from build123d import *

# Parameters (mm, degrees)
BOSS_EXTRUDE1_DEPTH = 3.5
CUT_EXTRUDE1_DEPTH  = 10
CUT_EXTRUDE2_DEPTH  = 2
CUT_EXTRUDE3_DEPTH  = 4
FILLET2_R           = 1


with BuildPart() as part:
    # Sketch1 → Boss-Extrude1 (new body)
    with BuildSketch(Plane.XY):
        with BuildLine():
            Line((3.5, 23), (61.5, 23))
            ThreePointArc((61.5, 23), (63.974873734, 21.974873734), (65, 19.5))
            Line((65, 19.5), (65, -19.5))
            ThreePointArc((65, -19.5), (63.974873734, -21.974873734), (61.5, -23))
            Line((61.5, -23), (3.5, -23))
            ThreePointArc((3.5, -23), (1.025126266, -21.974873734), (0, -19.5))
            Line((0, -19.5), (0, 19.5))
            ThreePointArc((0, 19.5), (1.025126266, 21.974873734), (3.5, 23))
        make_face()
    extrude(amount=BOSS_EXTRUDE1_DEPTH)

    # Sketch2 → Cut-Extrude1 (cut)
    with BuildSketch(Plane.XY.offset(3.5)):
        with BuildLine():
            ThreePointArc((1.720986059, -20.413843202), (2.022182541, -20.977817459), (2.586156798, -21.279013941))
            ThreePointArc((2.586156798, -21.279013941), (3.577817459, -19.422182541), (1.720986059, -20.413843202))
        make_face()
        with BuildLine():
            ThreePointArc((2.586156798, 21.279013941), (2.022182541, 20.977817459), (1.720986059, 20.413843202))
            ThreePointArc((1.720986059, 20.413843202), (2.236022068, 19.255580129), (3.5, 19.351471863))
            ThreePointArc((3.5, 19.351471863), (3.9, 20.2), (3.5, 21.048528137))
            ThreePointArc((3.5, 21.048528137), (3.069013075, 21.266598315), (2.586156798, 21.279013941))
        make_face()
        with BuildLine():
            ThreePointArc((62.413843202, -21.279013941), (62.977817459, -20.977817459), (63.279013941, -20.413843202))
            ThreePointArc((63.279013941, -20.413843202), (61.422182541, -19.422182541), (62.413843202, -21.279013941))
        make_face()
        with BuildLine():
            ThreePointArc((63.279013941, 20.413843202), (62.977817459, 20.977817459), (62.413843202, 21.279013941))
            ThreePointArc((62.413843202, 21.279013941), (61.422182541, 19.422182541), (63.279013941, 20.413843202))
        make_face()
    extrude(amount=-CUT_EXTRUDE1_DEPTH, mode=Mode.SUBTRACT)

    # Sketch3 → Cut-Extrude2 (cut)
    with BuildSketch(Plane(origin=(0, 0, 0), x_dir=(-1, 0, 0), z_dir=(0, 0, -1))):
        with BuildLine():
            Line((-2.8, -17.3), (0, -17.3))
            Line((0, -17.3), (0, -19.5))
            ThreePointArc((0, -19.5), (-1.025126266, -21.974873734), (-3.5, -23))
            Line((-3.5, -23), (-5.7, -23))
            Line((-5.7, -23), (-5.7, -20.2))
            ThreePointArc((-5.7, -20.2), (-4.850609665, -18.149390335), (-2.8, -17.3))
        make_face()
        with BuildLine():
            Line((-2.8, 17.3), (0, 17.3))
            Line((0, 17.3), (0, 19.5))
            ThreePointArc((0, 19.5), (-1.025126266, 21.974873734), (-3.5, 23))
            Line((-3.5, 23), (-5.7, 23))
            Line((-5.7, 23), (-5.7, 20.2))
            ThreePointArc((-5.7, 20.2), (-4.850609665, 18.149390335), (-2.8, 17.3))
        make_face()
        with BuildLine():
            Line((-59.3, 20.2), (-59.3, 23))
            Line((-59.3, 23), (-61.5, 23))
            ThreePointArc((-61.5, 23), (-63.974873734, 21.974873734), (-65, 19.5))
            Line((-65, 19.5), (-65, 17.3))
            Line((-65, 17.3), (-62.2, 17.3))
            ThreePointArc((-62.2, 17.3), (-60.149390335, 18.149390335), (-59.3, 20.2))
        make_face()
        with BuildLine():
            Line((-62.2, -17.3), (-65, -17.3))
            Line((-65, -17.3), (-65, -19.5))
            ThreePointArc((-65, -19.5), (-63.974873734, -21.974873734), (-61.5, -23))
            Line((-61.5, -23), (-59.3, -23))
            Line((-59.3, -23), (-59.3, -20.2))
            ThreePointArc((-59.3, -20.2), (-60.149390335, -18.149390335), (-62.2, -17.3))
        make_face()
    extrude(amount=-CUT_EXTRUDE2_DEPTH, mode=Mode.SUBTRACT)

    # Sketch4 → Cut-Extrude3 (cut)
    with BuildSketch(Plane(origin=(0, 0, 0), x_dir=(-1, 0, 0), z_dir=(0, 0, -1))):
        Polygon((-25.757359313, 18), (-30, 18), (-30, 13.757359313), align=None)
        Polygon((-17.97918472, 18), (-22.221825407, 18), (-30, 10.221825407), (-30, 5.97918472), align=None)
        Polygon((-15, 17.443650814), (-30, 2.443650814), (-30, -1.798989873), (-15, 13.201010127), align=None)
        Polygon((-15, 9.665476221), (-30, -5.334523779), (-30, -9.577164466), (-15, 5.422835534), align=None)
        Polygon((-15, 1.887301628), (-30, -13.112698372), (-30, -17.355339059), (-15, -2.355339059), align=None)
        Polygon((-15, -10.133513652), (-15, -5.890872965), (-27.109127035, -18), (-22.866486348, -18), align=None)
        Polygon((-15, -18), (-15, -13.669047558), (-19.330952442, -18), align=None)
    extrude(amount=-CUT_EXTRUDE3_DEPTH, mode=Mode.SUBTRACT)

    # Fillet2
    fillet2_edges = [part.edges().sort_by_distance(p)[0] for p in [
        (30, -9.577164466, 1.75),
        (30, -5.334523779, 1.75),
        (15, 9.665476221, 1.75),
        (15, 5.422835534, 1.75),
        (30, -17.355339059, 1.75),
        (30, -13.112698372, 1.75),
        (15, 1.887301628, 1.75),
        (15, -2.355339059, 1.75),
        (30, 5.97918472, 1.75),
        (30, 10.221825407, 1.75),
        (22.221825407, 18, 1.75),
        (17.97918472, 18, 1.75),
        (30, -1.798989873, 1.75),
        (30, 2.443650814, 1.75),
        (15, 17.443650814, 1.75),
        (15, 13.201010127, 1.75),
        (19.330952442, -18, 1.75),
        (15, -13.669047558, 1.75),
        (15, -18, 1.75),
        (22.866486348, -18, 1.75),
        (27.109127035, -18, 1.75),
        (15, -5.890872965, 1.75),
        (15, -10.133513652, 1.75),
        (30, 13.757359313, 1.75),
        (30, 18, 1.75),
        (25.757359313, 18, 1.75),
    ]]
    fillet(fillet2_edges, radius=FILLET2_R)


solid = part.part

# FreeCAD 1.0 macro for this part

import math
import FreeCAD as App
import Part
import Sketcher


def edges_at(feature, points):
    """Names of the edges that pass closest to the given points."""
    edges = feature.Shape.Edges
    near = lambda p: min(range(len(edges)), key=lambda i: edges[i].distToShape(Part.Vertex(*p))[0])
    return sorted({f"Edge{near(p) + 1}" for p in points})

doc = App.newDocument("Part")
body = doc.addObject("PartDesign::Body", "Body")

# Sketch on XY plane
sketch1 = body.newObject("Sketcher::SketchObject", "Sketch")
sketch1.AttachmentSupport = (doc.getObject("XY_Plane"), [""])
sketch1.MapMode = "FlatFace"
sketch1.addGeometry(Part.LineSegment(App.Vector(61.5, 23, 0), App.Vector(3.5, 23, 0)), False)
sketch1.addGeometry(Part.ArcOfCircle(Part.Circle(App.Vector(3.5, 19.5, 0), App.Vector(0, 0, 1), 3.5), math.radians(90), math.radians(180)), False)
sketch1.addGeometry(Part.LineSegment(App.Vector(0, 19.5, 0), App.Vector(0, -19.5, 0)), False)
sketch1.addGeometry(Part.ArcOfCircle(Part.Circle(App.Vector(3.5, -19.5, 0), App.Vector(0, 0, 1), 3.5), math.radians(-180), math.radians(-90)), False)
sketch1.addGeometry(Part.LineSegment(App.Vector(3.5, -23, 0), App.Vector(61.5, -23, 0)), False)
sketch1.addGeometry(Part.ArcOfCircle(Part.Circle(App.Vector(61.5, -19.5, 0), App.Vector(0, 0, 1), 3.5), math.radians(-90), math.radians(0)), False)
sketch1.addGeometry(Part.LineSegment(App.Vector(65, -19.5, 0), App.Vector(65, 19.5, 0)), False)
sketch1.addGeometry(Part.ArcOfCircle(Part.Circle(App.Vector(61.5, 19.5, 0), App.Vector(0, 0, 1), 3.5), math.radians(0), math.radians(90)), False)
sketch1.addConstraint(Sketcher.Constraint("Tangent", 0, 2, 1, 1))
sketch1.addConstraint(Sketcher.Constraint("Tangent", 1, 2, 2, 1))
sketch1.addConstraint(Sketcher.Constraint("Tangent", 2, 2, 3, 1))
sketch1.addConstraint(Sketcher.Constraint("Tangent", 3, 2, 4, 1))
sketch1.addConstraint(Sketcher.Constraint("Tangent", 4, 2, 5, 1))
sketch1.addConstraint(Sketcher.Constraint("Tangent", 5, 2, 6, 1))
sketch1.addConstraint(Sketcher.Constraint("Tangent", 6, 2, 7, 1))
sketch1.addConstraint(Sketcher.Constraint("Tangent", 7, 2, 0, 1))
sketch1.addConstraint(Sketcher.Constraint("Horizontal", 0))
sketch1.addConstraint(Sketcher.Constraint("Vertical", 2))
sketch1.addConstraint(Sketcher.Constraint("Horizontal", 4))
sketch1.addConstraint(Sketcher.Constraint("Vertical", 6))
sketch1.addConstraint(Sketcher.Constraint("Equal", 1, 3))
sketch1.addConstraint(Sketcher.Constraint("Equal", 3, 5))
sketch1.addConstraint(Sketcher.Constraint("Equal", 5, 7))
sketch1.addConstraint(Sketcher.Constraint("Symmetric", 1, 2, 2, 2, -1, 1))
sketch1.addConstraint(Sketcher.Constraint("Radius", 1, 3.5))
sketch1.addConstraint(Sketcher.Constraint("DistanceX", 0, 2, 0, 1, 58.0))
sketch1.addConstraint(Sketcher.Constraint("DistanceY", 2, 2, 2, 1, 39.0))
pad1 = body.newObject("PartDesign::Pad", "Pad")
pad1.Profile = sketch1
pad1.Length = 3.5

# Sketch on XY plane
sketch2 = body.newObject("Sketcher::SketchObject", "Sketch001")
sketch2.AttachmentSupport = (doc.getObject("XY_Plane"), [""])
sketch2.MapMode = "FlatFace"
sketch2.AttachmentOffset = App.Placement(App.Vector(0, 0, 3.5), App.Rotation())
sketch2.addGeometry(Part.ArcOfCircle(Part.Circle(App.Vector(2.8, -20.2, 0), App.Vector(0, 0, 1), 1.1), math.radians(-169), math.radians(-101)), False)
sketch2.addGeometry(Part.ArcOfCircle(Part.Circle(App.Vector(2.8, -20.2, 0), App.Vector(0, 0, 1), 1.1), math.radians(-101), math.radians(191)), False)
sketch2.addGeometry(Part.ArcOfCircle(Part.Circle(App.Vector(2.8, 20.2, 0), App.Vector(0, 0, 1), 1.1), math.radians(101), math.radians(169)), False)
sketch2.addGeometry(Part.ArcOfCircle(Part.Circle(App.Vector(2.8, 20.2, 0), App.Vector(0, 0, 1), 1.1), math.radians(169), math.radians(310)), False)
sketch2.addGeometry(Part.ArcOfCircle(Part.Circle(App.Vector(2.8, 20.2, 0), App.Vector(0, 0, 1), 1.1), math.radians(-50), math.radians(50)), False)
sketch2.addGeometry(Part.ArcOfCircle(Part.Circle(App.Vector(2.8, 20.2, 0), App.Vector(0, 0, 1), 1.1), math.radians(50), math.radians(101)), False)
sketch2.addGeometry(Part.ArcOfCircle(Part.Circle(App.Vector(62.2, -20.2, 0), App.Vector(0, 0, 1), 1.1), math.radians(-79), math.radians(-11)), False)
sketch2.addGeometry(Part.ArcOfCircle(Part.Circle(App.Vector(62.2, -20.2, 0), App.Vector(0, 0, 1), 1.1), math.radians(-11), math.radians(281)), False)
sketch2.addGeometry(Part.ArcOfCircle(Part.Circle(App.Vector(62.2, 20.2, 0), App.Vector(0, 0, 1), 1.1), math.radians(11), math.radians(79)), False)
sketch2.addGeometry(Part.ArcOfCircle(Part.Circle(App.Vector(62.2, 20.2, 0), App.Vector(0, 0, 1), 1.1), math.radians(79), math.radians(371)), False)
sketch2.addConstraint(Sketcher.Constraint("Tangent", 0, 1, 1, 2))
sketch2.addConstraint(Sketcher.Constraint("Coincident", 1, 1, 0, 2))
sketch2.addConstraint(Sketcher.Constraint("Tangent", 2, 2, 3, 1))
sketch2.addConstraint(Sketcher.Constraint("Tangent", 3, 2, 4, 1))
sketch2.addConstraint(Sketcher.Constraint("Tangent", 4, 2, 5, 1))
sketch2.addConstraint(Sketcher.Constraint("Tangent", 5, 2, 2, 1))
sketch2.addConstraint(Sketcher.Constraint("Tangent", 6, 1, 7, 2))
sketch2.addConstraint(Sketcher.Constraint("Coincident", 7, 1, 6, 2))
sketch2.addConstraint(Sketcher.Constraint("Tangent", 8, 1, 9, 2))
sketch2.addConstraint(Sketcher.Constraint("Coincident", 9, 1, 8, 2))
sketch2.addConstraint(Sketcher.Constraint("Equal", 1, 2))
sketch2.addConstraint(Sketcher.Constraint("Equal", 2, 3))
sketch2.addConstraint(Sketcher.Constraint("Equal", 5, 6))
sketch2.addConstraint(Sketcher.Constraint("Equal", 7, 8))
sketch2.addConstraint(Sketcher.Constraint("Symmetric", 0, 3, 2, 3, -1))
sketch2.addConstraint(Sketcher.Constraint("Symmetric", 6, 3, 8, 3, -1))
sketch2.addConstraint(Sketcher.Constraint("Horizontal", 1, 3, 6, 3))
sketch2.addConstraint(Sketcher.Constraint("Horizontal", 1, 1, 6, 1))
sketch2.addConstraint(Sketcher.Constraint("Horizontal", 0, 1, 7, 1))
sketch2.addConstraint(Sketcher.Constraint("Horizontal", 2, 2, 8, 1))
sketch2.addConstraint(Sketcher.Constraint("Horizontal", 5, 2, 9, 1))
sketch2.addConstraint(Sketcher.Constraint("Vertical", 0, 1, 2, 2))
sketch2.addConstraint(Sketcher.Constraint("Vertical", 3, 2, 4, 2))
sketch2.addConstraint(Sketcher.Constraint("Vertical", 1, 1, 5, 2))
sketch2.addConstraint(Sketcher.Constraint("Radius", 0, 1.1))
sketch2.addConstraint(Sketcher.Constraint("DistanceX", -1, 1, 0, 3, 2.8))
sketch2.addConstraint(Sketcher.Constraint("DistanceY", 0, 3, -1, 1, 20.2))
sketch2.addConstraint(Sketcher.Constraint("DistanceX", -1, 1, 6, 3, 62.2))
sketch2.addConstraint(Sketcher.Constraint("DistanceX", -1, 1, 3, 2, 3.5))
sketch2.addConstraint(Sketcher.Constraint("DistanceX", 0, 1, 1, 1, 0.865171))
sketch2.addConstraint(Sketcher.Constraint("DistanceY", 1, 1, 0, 1, 0.865171))
pocket1 = body.newObject("PartDesign::Pocket", "Pocket")
pocket1.Profile = sketch2
pocket1.Length = 10

# Sketch on XY plane
sketch3 = body.newObject("Sketcher::SketchObject", "Sketch002")
sketch3.AttachmentSupport = (doc.getObject("XY_Plane"), [""])
sketch3.MapMode = "FlatFace"
sketch3.addGeometry(Part.LineSegment(App.Vector(0, -17.3, 0), App.Vector(2.8, -17.3, 0)), False)
sketch3.addGeometry(Part.ArcOfCircle(Part.Circle(App.Vector(2.8, -20.2, 0), App.Vector(0, 0, 1), 2.9), math.radians(0), math.radians(90)), False)
sketch3.addGeometry(Part.LineSegment(App.Vector(5.7, -20.2, 0), App.Vector(5.7, -23, 0)), False)
sketch3.addGeometry(Part.LineSegment(App.Vector(5.7, -23, 0), App.Vector(3.5, -23, 0)), False)
sketch3.addGeometry(Part.ArcOfCircle(Part.Circle(App.Vector(3.5, -19.5, 0), App.Vector(0, 0, 1), 3.5), math.radians(-180), math.radians(-90)), False)
sketch3.addGeometry(Part.LineSegment(App.Vector(0, -19.5, 0), App.Vector(0, -17.3, 0)), False)
sketch3.addGeometry(Part.LineSegment(App.Vector(2.8, 17.3, 0), App.Vector(0, 17.3, 0)), False)
sketch3.addGeometry(Part.LineSegment(App.Vector(0, 17.3, 0), App.Vector(0, 19.5, 0)), False)
sketch3.addGeometry(Part.ArcOfCircle(Part.Circle(App.Vector(3.5, 19.5, 0), App.Vector(0, 0, 1), 3.5), math.radians(90), math.radians(180)), False)
sketch3.addGeometry(Part.LineSegment(App.Vector(3.5, 23, 0), App.Vector(5.7, 23, 0)), False)
sketch3.addGeometry(Part.LineSegment(App.Vector(5.7, 23, 0), App.Vector(5.7, 20.2, 0)), False)
sketch3.addGeometry(Part.ArcOfCircle(Part.Circle(App.Vector(2.8, 20.2, 0), App.Vector(0, 0, 1), 2.9), math.radians(-90), math.radians(0)), False)
sketch3.addGeometry(Part.LineSegment(App.Vector(59.3, 20.2, 0), App.Vector(59.3, 23, 0)), False)
sketch3.addGeometry(Part.LineSegment(App.Vector(59.3, 23, 0), App.Vector(61.5, 23, 0)), False)
sketch3.addGeometry(Part.ArcOfCircle(Part.Circle(App.Vector(61.5, 19.5, 0), App.Vector(0, 0, 1), 3.5), math.radians(0), math.radians(90)), False)
sketch3.addGeometry(Part.LineSegment(App.Vector(65, 19.5, 0), App.Vector(65, 17.3, 0)), False)
sketch3.addGeometry(Part.LineSegment(App.Vector(65, 17.3, 0), App.Vector(62.2, 17.3, 0)), False)
sketch3.addGeometry(Part.ArcOfCircle(Part.Circle(App.Vector(62.2, 20.2, 0), App.Vector(0, 0, 1), 2.9), math.radians(-180), math.radians(-90)), False)
sketch3.addGeometry(Part.LineSegment(App.Vector(62.2, -17.3, 0), App.Vector(65, -17.3, 0)), False)
sketch3.addGeometry(Part.LineSegment(App.Vector(65, -17.3, 0), App.Vector(65, -19.5, 0)), False)
sketch3.addGeometry(Part.ArcOfCircle(Part.Circle(App.Vector(61.5, -19.5, 0), App.Vector(0, 0, 1), 3.5), math.radians(-90), math.radians(0)), False)
sketch3.addGeometry(Part.LineSegment(App.Vector(61.5, -23, 0), App.Vector(59.3, -23, 0)), False)
sketch3.addGeometry(Part.LineSegment(App.Vector(59.3, -23, 0), App.Vector(59.3, -20.2, 0)), False)
sketch3.addGeometry(Part.ArcOfCircle(Part.Circle(App.Vector(62.2, -20.2, 0), App.Vector(0, 0, 1), 2.9), math.radians(90), math.radians(180)), False)
sketch3.addConstraint(Sketcher.Constraint("Tangent", 0, 2, 1, 2))
sketch3.addConstraint(Sketcher.Constraint("Tangent", 1, 1, 2, 1))
sketch3.addConstraint(Sketcher.Constraint("Coincident", 2, 2, 3, 1))
sketch3.addConstraint(Sketcher.Constraint("Tangent", 3, 2, 4, 2))
sketch3.addConstraint(Sketcher.Constraint("Tangent", 4, 1, 5, 1))
sketch3.addConstraint(Sketcher.Constraint("Coincident", 5, 2, 0, 1))
sketch3.addConstraint(Sketcher.Constraint("Coincident", 6, 2, 7, 1))
sketch3.addConstraint(Sketcher.Constraint("Tangent", 7, 2, 8, 2))
sketch3.addConstraint(Sketcher.Constraint("Tangent", 8, 1, 9, 1))
sketch3.addConstraint(Sketcher.Constraint("Coincident", 9, 2, 10, 1))
sketch3.addConstraint(Sketcher.Constraint("Tangent", 10, 2, 11, 2))
sketch3.addConstraint(Sketcher.Constraint("Tangent", 11, 1, 6, 1))
sketch3.addConstraint(Sketcher.Constraint("Coincident", 12, 2, 13, 1))
sketch3.addConstraint(Sketcher.Constraint("Tangent", 13, 2, 14, 2))
sketch3.addConstraint(Sketcher.Constraint("Tangent", 14, 1, 15, 1))
sketch3.addConstraint(Sketcher.Constraint("Coincident", 15, 2, 16, 1))
sketch3.addConstraint(Sketcher.Constraint("Tangent", 16, 2, 17, 2))
sketch3.addConstraint(Sketcher.Constraint("Tangent", 17, 1, 12, 1))
sketch3.addConstraint(Sketcher.Constraint("Coincident", 18, 2, 19, 1))
sketch3.addConstraint(Sketcher.Constraint("Tangent", 19, 2, 20, 2))
sketch3.addConstraint(Sketcher.Constraint("Tangent", 20, 1, 21, 1))
sketch3.addConstraint(Sketcher.Constraint("Coincident", 21, 2, 22, 1))
sketch3.addConstraint(Sketcher.Constraint("Tangent", 22, 2, 23, 2))
sketch3.addConstraint(Sketcher.Constraint("Tangent", 23, 1, 18, 1))
sketch3.addConstraint(Sketcher.Constraint("Horizontal", 0))
sketch3.addConstraint(Sketcher.Constraint("Vertical", 2))
sketch3.addConstraint(Sketcher.Constraint("Horizontal", 3))
sketch3.addConstraint(Sketcher.Constraint("Vertical", 5))
sketch3.addConstraint(Sketcher.Constraint("Horizontal", 6))
sketch3.addConstraint(Sketcher.Constraint("Vertical", 7))
sketch3.addConstraint(Sketcher.Constraint("Horizontal", 9))
sketch3.addConstraint(Sketcher.Constraint("Vertical", 10))
sketch3.addConstraint(Sketcher.Constraint("Vertical", 12))
sketch3.addConstraint(Sketcher.Constraint("Horizontal", 13))
sketch3.addConstraint(Sketcher.Constraint("Vertical", 15))
sketch3.addConstraint(Sketcher.Constraint("Horizontal", 16))
sketch3.addConstraint(Sketcher.Constraint("Horizontal", 18))
sketch3.addConstraint(Sketcher.Constraint("Vertical", 19))
sketch3.addConstraint(Sketcher.Constraint("Horizontal", 21))
sketch3.addConstraint(Sketcher.Constraint("Vertical", 22))
sketch3.addConstraint(Sketcher.Constraint("Equal", 4, 8))
sketch3.addConstraint(Sketcher.Constraint("Equal", 1, 11))
sketch3.addConstraint(Sketcher.Constraint("Equal", 8, 14))
sketch3.addConstraint(Sketcher.Constraint("Equal", 11, 17))
sketch3.addConstraint(Sketcher.Constraint("Equal", 14, 20))
sketch3.addConstraint(Sketcher.Constraint("Equal", 17, 23))
sketch3.addConstraint(Sketcher.Constraint("Symmetric", 5, 2, 6, 2, -1, 1))
sketch3.addConstraint(Sketcher.Constraint("Symmetric", 4, 3, 8, 3, -1))
sketch3.addConstraint(Sketcher.Constraint("Symmetric", 14, 3, 20, 3, -1))
sketch3.addConstraint(Sketcher.Constraint("Symmetric", 17, 3, 23, 3, -1))
sketch3.addConstraint(Sketcher.Constraint("Horizontal", 8, 3, 14, 3))
sketch3.addConstraint(Sketcher.Constraint("Horizontal", 11, 3, 17, 3))
sketch3.addConstraint(Sketcher.Constraint("Vertical", 1, 3, 11, 3))
sketch3.addConstraint(Sketcher.Constraint("Equal", 9, 13))
sketch3.addConstraint(Sketcher.Constraint("Equal", 18, 2))
sketch3.addConstraint(Sketcher.Constraint("Radius", 1, 2.9))
sketch3.addConstraint(Sketcher.Constraint("Radius", 4, 3.5))
sketch3.addConstraint(Sketcher.Constraint("DistanceX", 0, 1, 0, 2, 2.8))
sketch3.addConstraint(Sketcher.Constraint("DistanceY", 2, 2, -1, 1, 23.0))
sketch3.addConstraint(Sketcher.Constraint("DistanceX", -1, 1, 14, 1, 65.0))
pocket2 = body.newObject("PartDesign::Pocket", "Pocket001")
pocket2.Profile = sketch3
pocket2.Length = 2
pocket2.Reversed = True

# Sketch on XY plane
sketch4 = body.newObject("Sketcher::SketchObject", "Sketch003")
sketch4.AttachmentSupport = (doc.getObject("XY_Plane"), [""])
sketch4.MapMode = "FlatFace"
sketch4.addGeometry(Part.LineSegment(App.Vector(25.8, 18, 0), App.Vector(30, 18, 0)), False)
sketch4.addGeometry(Part.LineSegment(App.Vector(30, 18, 0), App.Vector(30, 13.8, 0)), False)
sketch4.addGeometry(Part.LineSegment(App.Vector(30, 13.8, 0), App.Vector(25.8, 18, 0)), False)
sketch4.addGeometry(Part.LineSegment(App.Vector(18, 18, 0), App.Vector(22.2, 18, 0)), False)
sketch4.addGeometry(Part.LineSegment(App.Vector(22.2, 18, 0), App.Vector(30, 10.2, 0)), False)
sketch4.addGeometry(Part.LineSegment(App.Vector(30, 10.2, 0), App.Vector(30, 6, 0)), False)
sketch4.addGeometry(Part.LineSegment(App.Vector(30, 6, 0), App.Vector(18, 18, 0)), False)
sketch4.addGeometry(Part.LineSegment(App.Vector(15, 17.4, 0), App.Vector(30, 2.4, 0)), False)
sketch4.addGeometry(Part.LineSegment(App.Vector(30, 2.4, 0), App.Vector(30, -1.8, 0)), False)
sketch4.addGeometry(Part.LineSegment(App.Vector(30, -1.8, 0), App.Vector(15, 13.2, 0)), False)
sketch4.addGeometry(Part.LineSegment(App.Vector(15, 13.2, 0), App.Vector(15, 17.4, 0)), False)
sketch4.addGeometry(Part.LineSegment(App.Vector(15, 9.7, 0), App.Vector(30, -5.3, 0)), False)
sketch4.addGeometry(Part.LineSegment(App.Vector(30, -5.3, 0), App.Vector(30, -9.6, 0)), False)
sketch4.addGeometry(Part.LineSegment(App.Vector(30, -9.6, 0), App.Vector(15, 5.4, 0)), False)
sketch4.addGeometry(Part.LineSegment(App.Vector(15, 5.4, 0), App.Vector(15, 9.7, 0)), False)
sketch4.addGeometry(Part.LineSegment(App.Vector(15, 1.9, 0), App.Vector(30, -13.1, 0)), False)
sketch4.addGeometry(Part.LineSegment(App.Vector(30, -13.1, 0), App.Vector(30, -17.4, 0)), False)
sketch4.addGeometry(Part.LineSegment(App.Vector(30, -17.4, 0), App.Vector(15, -2.4, 0)), False)
sketch4.addGeometry(Part.LineSegment(App.Vector(15, -2.4, 0), App.Vector(15, 1.9, 0)), False)
sketch4.addGeometry(Part.LineSegment(App.Vector(15, -10.1, 0), App.Vector(15, -5.9, 0)), False)
sketch4.addGeometry(Part.LineSegment(App.Vector(15, -5.9, 0), App.Vector(27.1, -18, 0)), False)
sketch4.addGeometry(Part.LineSegment(App.Vector(27.1, -18, 0), App.Vector(22.9, -18, 0)), False)
sketch4.addGeometry(Part.LineSegment(App.Vector(22.9, -18, 0), App.Vector(15, -10.1, 0)), False)
sketch4.addGeometry(Part.LineSegment(App.Vector(15, -18, 0), App.Vector(15, -13.7, 0)), False)
sketch4.addGeometry(Part.LineSegment(App.Vector(15, -13.7, 0), App.Vector(19.3, -18, 0)), False)
sketch4.addGeometry(Part.LineSegment(App.Vector(19.3, -18, 0), App.Vector(15, -18, 0)), False)
sketch4.addConstraint(Sketcher.Constraint("Coincident", 0, 2, 1, 1))
sketch4.addConstraint(Sketcher.Constraint("Coincident", 1, 2, 2, 1))
sketch4.addConstraint(Sketcher.Constraint("Coincident", 2, 2, 0, 1))
sketch4.addConstraint(Sketcher.Constraint("Coincident", 3, 2, 4, 1))
sketch4.addConstraint(Sketcher.Constraint("Coincident", 4, 2, 5, 1))
sketch4.addConstraint(Sketcher.Constraint("Coincident", 5, 2, 6, 1))
sketch4.addConstraint(Sketcher.Constraint("Coincident", 6, 2, 3, 1))
sketch4.addConstraint(Sketcher.Constraint("Coincident", 7, 2, 8, 1))
sketch4.addConstraint(Sketcher.Constraint("Coincident", 8, 2, 9, 1))
sketch4.addConstraint(Sketcher.Constraint("Coincident", 9, 2, 10, 1))
sketch4.addConstraint(Sketcher.Constraint("Coincident", 10, 2, 7, 1))
sketch4.addConstraint(Sketcher.Constraint("Coincident", 11, 2, 12, 1))
sketch4.addConstraint(Sketcher.Constraint("Coincident", 12, 2, 13, 1))
sketch4.addConstraint(Sketcher.Constraint("Coincident", 13, 2, 14, 1))
sketch4.addConstraint(Sketcher.Constraint("Coincident", 14, 2, 11, 1))
sketch4.addConstraint(Sketcher.Constraint("Coincident", 15, 2, 16, 1))
sketch4.addConstraint(Sketcher.Constraint("Coincident", 16, 2, 17, 1))
sketch4.addConstraint(Sketcher.Constraint("Coincident", 17, 2, 18, 1))
sketch4.addConstraint(Sketcher.Constraint("Coincident", 18, 2, 15, 1))
sketch4.addConstraint(Sketcher.Constraint("Coincident", 19, 2, 20, 1))
sketch4.addConstraint(Sketcher.Constraint("Coincident", 20, 2, 21, 1))
sketch4.addConstraint(Sketcher.Constraint("Coincident", 21, 2, 22, 1))
sketch4.addConstraint(Sketcher.Constraint("Coincident", 22, 2, 19, 1))
sketch4.addConstraint(Sketcher.Constraint("Coincident", 23, 2, 24, 1))
sketch4.addConstraint(Sketcher.Constraint("Coincident", 24, 2, 25, 1))
sketch4.addConstraint(Sketcher.Constraint("Coincident", 25, 2, 23, 1))
sketch4.addConstraint(Sketcher.Constraint("Horizontal", 0))
sketch4.addConstraint(Sketcher.Constraint("Vertical", 1))
sketch4.addConstraint(Sketcher.Constraint("Horizontal", 3))
sketch4.addConstraint(Sketcher.Constraint("Vertical", 5))
sketch4.addConstraint(Sketcher.Constraint("Vertical", 8))
sketch4.addConstraint(Sketcher.Constraint("Vertical", 10))
sketch4.addConstraint(Sketcher.Constraint("Vertical", 12))
sketch4.addConstraint(Sketcher.Constraint("Vertical", 14))
sketch4.addConstraint(Sketcher.Constraint("Vertical", 16))
sketch4.addConstraint(Sketcher.Constraint("Vertical", 18))
sketch4.addConstraint(Sketcher.Constraint("Vertical", 19))
sketch4.addConstraint(Sketcher.Constraint("Horizontal", 21))
sketch4.addConstraint(Sketcher.Constraint("Vertical", 23))
sketch4.addConstraint(Sketcher.Constraint("Horizontal", 25))
sketch4.addConstraint(Sketcher.Constraint("Parallel", 2, 4))
sketch4.addConstraint(Sketcher.Constraint("Parallel", 4, 6))
sketch4.addConstraint(Sketcher.Constraint("Parallel", 6, 7))
sketch4.addConstraint(Sketcher.Constraint("Parallel", 7, 9))
sketch4.addConstraint(Sketcher.Constraint("Parallel", 9, 11))
sketch4.addConstraint(Sketcher.Constraint("Parallel", 11, 13))
sketch4.addConstraint(Sketcher.Constraint("Parallel", 13, 15))
sketch4.addConstraint(Sketcher.Constraint("Parallel", 15, 17))
sketch4.addConstraint(Sketcher.Constraint("Parallel", 17, 20))
sketch4.addConstraint(Sketcher.Constraint("Parallel", 20, 22))
sketch4.addConstraint(Sketcher.Constraint("Parallel", 22, 24))
sketch4.addConstraint(Sketcher.Constraint("Horizontal", 2, 2, 3, 2))
sketch4.addConstraint(Sketcher.Constraint("Horizontal", 21, 2, 24, 2))
sketch4.addConstraint(Sketcher.Constraint("Vertical", 1, 2, 4, 2))
sketch4.addConstraint(Sketcher.Constraint("Vertical", 5, 2, 7, 2))
sketch4.addConstraint(Sketcher.Constraint("Vertical", 8, 2, 11, 2))
sketch4.addConstraint(Sketcher.Constraint("Vertical", 10, 2, 13, 2))
sketch4.addConstraint(Sketcher.Constraint("Vertical", 12, 2, 15, 2))
sketch4.addConstraint(Sketcher.Constraint("Vertical", 14, 2, 17, 2))
sketch4.addConstraint(Sketcher.Constraint("Vertical", 18, 2, 19, 2))
sketch4.addConstraint(Sketcher.Constraint("Vertical", 22, 2, 23, 2))
sketch4.addConstraint(Sketcher.Constraint("Equal", 0, 3))
sketch4.addConstraint(Sketcher.Constraint("Equal", 3, 21))
sketch4.addConstraint(Sketcher.Constraint("Equal", 21, 1))
sketch4.addConstraint(Sketcher.Constraint("Equal", 5, 8))
sketch4.addConstraint(Sketcher.Constraint("Equal", 10, 12))
sketch4.addConstraint(Sketcher.Constraint("Equal", 14, 16))
sketch4.addConstraint(Sketcher.Constraint("Distance", 2, 6.0))
sketch4.addConstraint(Sketcher.Constraint("Distance", 4, 11.0))
sketch4.addConstraint(Sketcher.Constraint("DistanceX", -1, 1, 0, 2, 30.0))
sketch4.addConstraint(Sketcher.Constraint("DistanceY", -1, 1, 0, 2, 18.0))
sketch4.addConstraint(Sketcher.Constraint("DistanceX", -1, 1, 9, 2, 15.0))
sketch4.addConstraint(Sketcher.Constraint("DistanceY", 20, 2, -1, 1, 18.0))
sketch4.addConstraint(Sketcher.Constraint("DistanceY", 15, 2, -1, 1, 13.112698))
sketch4.addConstraint(Sketcher.Constraint("Distance", 20, 17.124892))
sketch4.addConstraint(Sketcher.Constraint("Distance", 24, 6.124892))
sketch4.addConstraint(Sketcher.Constraint("DistanceY", -1, 1, 7, 2, 2.443651))
sketch4.addConstraint(Sketcher.Constraint("DistanceY", 11, 2, 5, 2, 11.313708))
pocket3 = body.newObject("PartDesign::Pocket", "Pocket002")
pocket3.Profile = sketch4
pocket3.Length = 4
pocket3.Reversed = True
doc.recompute()

fillet = body.newObject("PartDesign::Fillet", "Fillet")
fillet.Base = (pocket3, edges_at(pocket3, [
    (30, -9.577, 1.75),
    (30, -5.335, 1.75),
    (15, 9.665, 1.75),
    (15, 5.423, 1.75),
    (30, -17.355, 1.75),
    (30, -13.113, 1.75),
    (15, 1.887, 1.75),
    (15, -2.355, 1.75),
    (30, 5.979, 1.75),
    (30, 10.222, 1.75),
    (22.222, 18, 1.75),
    (17.979, 18, 1.75),
    (30, -1.799, 1.75),
    (30, 2.444, 1.75),
    (15, 17.444, 1.75),
    (15, 13.201, 1.75),
    (19.331, -18, 1.75),
    (15, -13.669, 1.75),
    (15, -18, 1.75),
    (22.866, -18, 1.75),
    (27.109, -18, 1.75),
    (15, -5.891, 1.75),
    (15, -10.134, 1.75),
    (30, 13.757, 1.75),
    (30, 18, 1.75),
    (25.757, 18, 1.75),
]))
fillet.Radius = 1

doc.recompute()
